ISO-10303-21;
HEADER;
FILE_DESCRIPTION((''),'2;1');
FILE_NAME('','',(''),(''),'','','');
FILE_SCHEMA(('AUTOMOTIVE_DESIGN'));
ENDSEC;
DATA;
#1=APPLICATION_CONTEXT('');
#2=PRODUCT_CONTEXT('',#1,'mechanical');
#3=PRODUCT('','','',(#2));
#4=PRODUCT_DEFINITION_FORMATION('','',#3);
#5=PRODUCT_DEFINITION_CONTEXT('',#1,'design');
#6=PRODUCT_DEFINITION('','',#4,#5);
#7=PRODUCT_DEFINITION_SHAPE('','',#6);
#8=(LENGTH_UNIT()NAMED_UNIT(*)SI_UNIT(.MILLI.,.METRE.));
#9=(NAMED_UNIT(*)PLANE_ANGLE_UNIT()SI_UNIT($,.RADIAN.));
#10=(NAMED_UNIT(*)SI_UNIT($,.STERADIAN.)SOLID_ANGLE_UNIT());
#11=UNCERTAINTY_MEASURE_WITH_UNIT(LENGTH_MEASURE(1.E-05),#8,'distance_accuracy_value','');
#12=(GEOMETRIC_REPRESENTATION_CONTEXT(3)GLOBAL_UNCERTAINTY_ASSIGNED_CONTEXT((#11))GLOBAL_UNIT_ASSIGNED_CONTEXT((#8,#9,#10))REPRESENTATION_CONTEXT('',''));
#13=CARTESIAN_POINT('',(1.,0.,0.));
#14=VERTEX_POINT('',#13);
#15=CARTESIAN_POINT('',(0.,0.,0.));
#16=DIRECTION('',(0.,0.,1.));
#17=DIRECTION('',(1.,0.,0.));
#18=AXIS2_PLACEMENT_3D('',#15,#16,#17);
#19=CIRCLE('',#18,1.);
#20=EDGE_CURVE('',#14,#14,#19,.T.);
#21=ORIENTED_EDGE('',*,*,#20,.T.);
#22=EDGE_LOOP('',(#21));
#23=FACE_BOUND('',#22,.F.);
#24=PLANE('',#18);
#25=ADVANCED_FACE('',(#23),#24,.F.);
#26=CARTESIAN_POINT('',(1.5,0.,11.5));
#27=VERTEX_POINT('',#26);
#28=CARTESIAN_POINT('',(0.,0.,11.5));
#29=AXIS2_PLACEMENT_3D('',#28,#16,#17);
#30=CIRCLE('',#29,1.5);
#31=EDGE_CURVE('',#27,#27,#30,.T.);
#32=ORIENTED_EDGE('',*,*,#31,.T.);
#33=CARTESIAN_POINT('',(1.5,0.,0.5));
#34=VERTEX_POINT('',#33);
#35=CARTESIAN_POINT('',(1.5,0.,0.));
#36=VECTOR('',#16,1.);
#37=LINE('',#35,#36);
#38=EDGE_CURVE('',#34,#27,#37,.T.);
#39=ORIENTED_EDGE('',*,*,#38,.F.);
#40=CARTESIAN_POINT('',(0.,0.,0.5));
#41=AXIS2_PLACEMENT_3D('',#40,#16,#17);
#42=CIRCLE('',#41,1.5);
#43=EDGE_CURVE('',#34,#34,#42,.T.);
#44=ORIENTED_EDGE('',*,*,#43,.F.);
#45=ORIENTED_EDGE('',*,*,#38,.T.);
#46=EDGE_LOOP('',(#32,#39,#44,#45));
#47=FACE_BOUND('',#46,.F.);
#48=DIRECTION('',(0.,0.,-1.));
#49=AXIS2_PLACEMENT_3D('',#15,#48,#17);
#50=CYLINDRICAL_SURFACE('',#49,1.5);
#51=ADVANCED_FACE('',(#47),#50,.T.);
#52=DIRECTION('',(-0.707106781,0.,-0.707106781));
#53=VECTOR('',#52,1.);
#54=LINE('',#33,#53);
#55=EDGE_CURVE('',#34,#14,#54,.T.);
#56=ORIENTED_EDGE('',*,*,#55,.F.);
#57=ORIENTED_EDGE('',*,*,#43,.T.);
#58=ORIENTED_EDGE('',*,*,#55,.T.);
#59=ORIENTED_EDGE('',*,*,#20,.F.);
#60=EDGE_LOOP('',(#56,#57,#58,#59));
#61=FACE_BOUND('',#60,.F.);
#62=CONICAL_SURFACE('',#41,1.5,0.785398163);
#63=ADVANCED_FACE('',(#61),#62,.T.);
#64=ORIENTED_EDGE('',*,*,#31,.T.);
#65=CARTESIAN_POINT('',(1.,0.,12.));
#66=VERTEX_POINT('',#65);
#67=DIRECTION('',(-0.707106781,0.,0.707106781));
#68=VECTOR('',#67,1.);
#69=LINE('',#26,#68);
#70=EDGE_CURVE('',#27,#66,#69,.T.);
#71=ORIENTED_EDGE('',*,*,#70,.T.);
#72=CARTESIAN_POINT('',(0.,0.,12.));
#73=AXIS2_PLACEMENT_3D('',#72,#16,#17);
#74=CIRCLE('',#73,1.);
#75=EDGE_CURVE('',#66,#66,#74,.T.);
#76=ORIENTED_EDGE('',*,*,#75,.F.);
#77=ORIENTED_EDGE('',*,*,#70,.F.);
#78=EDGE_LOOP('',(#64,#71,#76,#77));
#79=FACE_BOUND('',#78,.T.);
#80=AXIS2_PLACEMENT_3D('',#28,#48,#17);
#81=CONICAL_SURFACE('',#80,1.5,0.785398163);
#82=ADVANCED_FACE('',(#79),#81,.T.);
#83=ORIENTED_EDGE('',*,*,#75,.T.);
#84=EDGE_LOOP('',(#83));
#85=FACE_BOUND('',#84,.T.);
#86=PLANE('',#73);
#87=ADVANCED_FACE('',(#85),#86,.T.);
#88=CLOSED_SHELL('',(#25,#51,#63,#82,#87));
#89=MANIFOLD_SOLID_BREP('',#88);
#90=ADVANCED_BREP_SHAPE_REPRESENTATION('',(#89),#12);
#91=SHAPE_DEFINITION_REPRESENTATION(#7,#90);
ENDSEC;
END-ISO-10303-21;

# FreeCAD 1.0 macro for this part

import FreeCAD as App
import Part
import Sketcher

V = App.Vector


def edges_at(feature, points):
    """Names of the edges that pass closest to the given points."""
    edges = feature.Shape.Edges
    near = lambda p: min(range(len(edges)), key=lambda i: edges[i].distToShape(Part.Vertex(*p))[0])
    return sorted({f"Edge{near(p) + 1}" for p in points})

doc = App.newDocument("Part")
body = doc.addObject("PartDesign::Body", "Body")

# Sketch on XY plane
sketch1 = body.newObject("Sketcher::SketchObject", "Sketch")
sketch1.AttachmentSupport = (doc.getObject("XY_Plane"), [""])
sketch1.MapMode = "FlatFace"
sketch1.addGeometry(Part.Circle(V(0, 0, 0), V(0, 0, 1), 1.5), False)
sketch1.addConstraint([
    Sketcher.Constraint("Coincident", 0, 3, -1, 1),
    Sketcher.Constraint("Diameter", 0, 3.0),
])
pad1 = body.newObject("PartDesign::Pad", "Pad")
pad1.Profile = sketch1
pad1.Length = 12
doc.recompute()

chamfer = body.newObject("PartDesign::Chamfer", "Chamfer")
chamfer.Base = (pad1, edges_at(pad1, [(-1.5, 0, 12), (-1.5, 0, 0)]))
chamfer.Size = 0.5

doc.recompute()
